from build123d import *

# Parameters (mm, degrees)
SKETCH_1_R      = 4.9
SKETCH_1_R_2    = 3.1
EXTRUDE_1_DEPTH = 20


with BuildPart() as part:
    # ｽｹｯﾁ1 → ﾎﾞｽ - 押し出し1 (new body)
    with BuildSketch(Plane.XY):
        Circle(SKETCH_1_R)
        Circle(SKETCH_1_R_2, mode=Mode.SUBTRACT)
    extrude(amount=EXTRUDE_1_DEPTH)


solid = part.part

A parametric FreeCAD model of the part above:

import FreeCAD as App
import Part
import Sketcher
Q = App.Units.Quantity

doc = App.newDocument("Part")
body = doc.addObject("PartDesign::Body", "Body")

# Sketch on XY plane
sketch1 = body.newObject("Sketcher::SketchObject", "Sketch")
sketch1.AttachmentSupport = (doc.getObject("XY_Plane"), [""])
sketch1.MapMode = "FlatFace"
sketch1.addGeometry(Part.Circle(App.Vector(0, 0, 0), App.Vector(0, 0, 1), 4.9), False)
sketch1.addGeometry(Part.Circle(App.Vector(0, 0, 0), App.Vector(0, 0, 1), 3.1), False)
sketch1.addConstraint(Sketcher.Constraint("Coincident", 0, 3, -1, 1))
sketch1.addConstraint(Sketcher.Constraint("Coincident", 1, 3, -1, 1))
sketch1.addConstraint(Sketcher.Constraint("Diameter", 0, Q("9.8 mm")))
sketch1.addConstraint(Sketcher.Constraint("Diameter", 1, Q("6.2 mm")))
pad1 = body.newObject("PartDesign::Pad", "Pad")
pad1.Profile = sketch1
pad1.Length = 20

doc.recompute()
